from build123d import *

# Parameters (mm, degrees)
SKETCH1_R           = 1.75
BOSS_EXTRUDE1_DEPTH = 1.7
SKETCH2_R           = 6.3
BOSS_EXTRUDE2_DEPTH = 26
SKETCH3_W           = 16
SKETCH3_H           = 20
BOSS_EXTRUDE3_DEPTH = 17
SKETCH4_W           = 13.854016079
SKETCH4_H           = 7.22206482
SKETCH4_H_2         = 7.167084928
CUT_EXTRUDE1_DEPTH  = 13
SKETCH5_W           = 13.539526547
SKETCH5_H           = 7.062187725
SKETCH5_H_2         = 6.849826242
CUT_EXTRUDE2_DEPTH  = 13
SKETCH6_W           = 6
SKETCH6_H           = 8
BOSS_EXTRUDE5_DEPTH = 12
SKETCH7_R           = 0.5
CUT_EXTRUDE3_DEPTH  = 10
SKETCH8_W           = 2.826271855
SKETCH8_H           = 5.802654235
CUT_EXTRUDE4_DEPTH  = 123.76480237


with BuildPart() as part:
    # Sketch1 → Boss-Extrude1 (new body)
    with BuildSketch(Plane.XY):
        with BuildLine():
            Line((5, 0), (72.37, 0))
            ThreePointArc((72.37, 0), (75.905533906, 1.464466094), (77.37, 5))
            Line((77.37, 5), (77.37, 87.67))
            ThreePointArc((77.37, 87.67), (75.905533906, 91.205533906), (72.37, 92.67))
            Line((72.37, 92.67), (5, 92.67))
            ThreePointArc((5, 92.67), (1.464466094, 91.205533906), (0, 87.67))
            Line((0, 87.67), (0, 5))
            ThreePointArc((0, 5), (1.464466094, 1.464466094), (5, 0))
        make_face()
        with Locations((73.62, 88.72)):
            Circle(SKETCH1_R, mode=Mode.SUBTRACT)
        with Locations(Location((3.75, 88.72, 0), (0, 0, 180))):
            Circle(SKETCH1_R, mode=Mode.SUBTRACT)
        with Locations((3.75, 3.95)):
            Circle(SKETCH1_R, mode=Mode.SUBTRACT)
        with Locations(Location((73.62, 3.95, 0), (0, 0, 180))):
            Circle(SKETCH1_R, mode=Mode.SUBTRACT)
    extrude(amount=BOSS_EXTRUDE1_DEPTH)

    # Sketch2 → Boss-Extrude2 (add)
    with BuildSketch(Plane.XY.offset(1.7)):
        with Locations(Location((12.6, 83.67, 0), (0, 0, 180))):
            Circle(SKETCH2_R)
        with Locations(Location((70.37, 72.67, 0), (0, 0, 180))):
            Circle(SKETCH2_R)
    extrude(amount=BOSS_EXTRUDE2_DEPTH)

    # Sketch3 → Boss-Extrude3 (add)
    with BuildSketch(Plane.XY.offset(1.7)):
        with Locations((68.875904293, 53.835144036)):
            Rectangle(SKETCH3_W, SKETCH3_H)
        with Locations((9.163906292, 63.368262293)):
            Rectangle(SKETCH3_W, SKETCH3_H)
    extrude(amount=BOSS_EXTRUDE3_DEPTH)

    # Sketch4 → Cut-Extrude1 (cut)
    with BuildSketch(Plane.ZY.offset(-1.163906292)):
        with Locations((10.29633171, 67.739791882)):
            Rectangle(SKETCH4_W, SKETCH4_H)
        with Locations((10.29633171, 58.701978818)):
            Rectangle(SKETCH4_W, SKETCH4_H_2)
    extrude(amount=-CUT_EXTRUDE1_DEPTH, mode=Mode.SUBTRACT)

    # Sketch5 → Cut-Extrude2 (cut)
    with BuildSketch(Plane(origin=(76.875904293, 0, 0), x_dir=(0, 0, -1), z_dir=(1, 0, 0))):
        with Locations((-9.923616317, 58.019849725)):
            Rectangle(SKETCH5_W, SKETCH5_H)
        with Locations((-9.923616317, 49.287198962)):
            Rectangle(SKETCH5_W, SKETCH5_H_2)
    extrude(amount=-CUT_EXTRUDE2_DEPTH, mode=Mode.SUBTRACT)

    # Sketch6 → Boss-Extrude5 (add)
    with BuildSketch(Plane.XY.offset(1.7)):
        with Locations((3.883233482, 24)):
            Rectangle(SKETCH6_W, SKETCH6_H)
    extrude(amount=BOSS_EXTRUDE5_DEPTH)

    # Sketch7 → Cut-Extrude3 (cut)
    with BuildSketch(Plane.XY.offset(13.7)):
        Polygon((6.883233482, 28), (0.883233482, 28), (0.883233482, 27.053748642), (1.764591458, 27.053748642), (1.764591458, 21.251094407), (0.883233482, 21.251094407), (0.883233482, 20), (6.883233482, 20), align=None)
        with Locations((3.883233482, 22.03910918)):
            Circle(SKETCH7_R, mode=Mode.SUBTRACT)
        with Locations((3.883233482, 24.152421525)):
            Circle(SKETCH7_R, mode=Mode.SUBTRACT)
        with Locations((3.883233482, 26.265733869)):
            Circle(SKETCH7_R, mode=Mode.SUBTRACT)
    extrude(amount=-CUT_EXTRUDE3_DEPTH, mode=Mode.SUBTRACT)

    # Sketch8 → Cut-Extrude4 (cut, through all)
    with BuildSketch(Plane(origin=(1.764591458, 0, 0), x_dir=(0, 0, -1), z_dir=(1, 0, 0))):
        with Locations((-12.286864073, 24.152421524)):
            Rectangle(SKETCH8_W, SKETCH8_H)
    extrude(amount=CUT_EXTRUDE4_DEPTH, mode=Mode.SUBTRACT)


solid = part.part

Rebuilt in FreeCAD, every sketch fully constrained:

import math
import FreeCAD as App
import Part
import Sketcher
Q = App.Units.Quantity


def add_polygon(sketch, points):
    """Adds a closed chain of lines whose ends are joined by coincident constraints."""
    first, n = sketch.GeometryCount, len(points)
    for a, b in zip(points, points[1:] + points[:1]):
        sketch.addGeometry(Part.LineSegment(App.Vector(*a, 0), App.Vector(*b, 0)), False)
    for i in range(n):
        sketch.addConstraint(Sketcher.Constraint("Coincident", first + i, 2, first + (i + 1) % n, 1))

doc = App.newDocument("Part")
body = doc.addObject("PartDesign::Body", "Body")

# Sketch on XY plane
sketch1 = body.newObject("Sketcher::SketchObject", "Sketch")
sketch1.AttachmentSupport = (doc.getObject("XY_Plane"), [""])
sketch1.MapMode = "FlatFace"
sketch1.addGeometry([
    Part.LineSegment(App.Vector(5, 0, 0), App.Vector(72.37, 0, 0)),  # 0
    Part.ArcOfCircle(Part.Circle(App.Vector(72.37, 5, 0), App.Vector(0, 0, 1), 5), math.radians(-90), math.radians(0)),  # 1
    Part.LineSegment(App.Vector(77.37, 5, 0), App.Vector(77.37, 87.67, 0)),  # 2
    Part.ArcOfCircle(Part.Circle(App.Vector(72.37, 87.67, 0), App.Vector(0, 0, 1), 5), math.radians(0), math.radians(90)),  # 3
    Part.LineSegment(App.Vector(72.37, 92.67, 0), App.Vector(5, 92.67, 0)),  # 4
    Part.ArcOfCircle(Part.Circle(App.Vector(5, 87.67, 0), App.Vector(0, 0, 1), 5), math.radians(90), math.radians(180)),  # 5
    Part.LineSegment(App.Vector(0, 87.67, 0), App.Vector(0, 5, 0)),  # 6
    Part.ArcOfCircle(Part.Circle(App.Vector(5, 5, 0), App.Vector(0, 0, 1), 5), math.radians(180), math.radians(270)),  # 7
    Part.Circle(App.Vector(3.75, 3.95, 0), App.Vector(0, 0, 1), 1.75),  # 8
    Part.Circle(App.Vector(73.62, 3.95, 0), App.Vector(0, 0, 1), 1.75),  # 9
    Part.Circle(App.Vector(3.75, 88.72, 0), App.Vector(0, 0, 1), 1.75),  # 10
    Part.Circle(App.Vector(73.62, 88.72, 0), App.Vector(0, 0, 1), 1.75),  # 11
], False)
sketch1.addConstraint([
    Sketcher.Constraint("Tangent", 0, 2, 1, 1),
    Sketcher.Constraint("Tangent", 1, 2, 2, 1),
    Sketcher.Constraint("Tangent", 2, 2, 3, 1),
    Sketcher.Constraint("Tangent", 3, 2, 4, 1),
    Sketcher.Constraint("Tangent", 4, 2, 5, 1),
    Sketcher.Constraint("Tangent", 5, 2, 6, 1),
    Sketcher.Constraint("Tangent", 6, 2, 7, 1),
    Sketcher.Constraint("Tangent", 7, 2, 0, 1),
    Sketcher.Constraint("Horizontal", 0),
    Sketcher.Constraint("Vertical", 2),
    Sketcher.Constraint("Horizontal", 4),
    Sketcher.Constraint("Vertical", 6),
    Sketcher.Constraint("Equal", 1, 3),
    Sketcher.Constraint("Equal", 3, 5),
    Sketcher.Constraint("Equal", 5, 7),
    Sketcher.Constraint("Equal", 8, 9),
    Sketcher.Constraint("Equal", 9, 10),
    Sketcher.Constraint("Equal", 10, 11),
    Sketcher.Constraint("PointOnObject", 0, 2, -1),
    Sketcher.Constraint("PointOnObject", 5, 2, -2),
    Sketcher.Constraint("Horizontal", 8, 3, 9, 3),
    Sketcher.Constraint("Horizontal", 10, 3, 11, 3),
    Sketcher.Constraint("Vertical", 8, 3, 10, 3),
    Sketcher.Constraint("Vertical", 9, 3, 11, 3),
    Sketcher.Constraint("Radius", 1, Q("5 mm")),
    Sketcher.Constraint("Diameter", 8, Q("3.5 mm")),
    Sketcher.Constraint("DistanceX", 0, 1, 0, 2, Q("67.37 mm")),
    Sketcher.Constraint("DistanceY", 2, 1, 2, 2, Q("82.67 mm")),
    Sketcher.Constraint("DistanceX", -1, 1, 8, 3, Q("3.75 mm")),
    Sketcher.Constraint("DistanceY", -1, 1, 8, 3, Q("3.95 mm")),
    Sketcher.Constraint("DistanceX", -1, 1, 9, 3, Q("73.62 mm")),
    Sketcher.Constraint("DistanceY", -1, 1, 10, 3, Q("88.72 mm")),
])
pad1 = body.newObject("PartDesign::Pad", "Pad")
pad1.Profile = sketch1
pad1.Length = 1.7

# Sketch on XY plane
sketch2 = body.newObject("Sketcher::SketchObject", "Sketch001")
sketch2.AttachmentSupport = (doc.getObject("XY_Plane"), [""])
sketch2.MapMode = "FlatFace"
sketch2.AttachmentOffset = App.Placement(App.Vector(0, 0, 1.7), App.Rotation())
sketch2.addGeometry([
    Part.Circle(App.Vector(12.6, 83.67, 0), App.Vector(0, 0, 1), 6.3),
    Part.Circle(App.Vector(70.37, 72.67, 0), App.Vector(0, 0, 1), 6.3),
], False)
sketch2.addConstraint([
    Sketcher.Constraint("Equal", 0, 1),
    Sketcher.Constraint("Diameter", 0, Q("12.6 mm")),
    Sketcher.Constraint("DistanceY", 1, 3, 0, 3, Q("11 mm")),
    Sketcher.Constraint("DistanceX", -1, 1, 0, 3, Q("12.6 mm")),
    Sketcher.Constraint("DistanceY", -1, 1, 0, 3, Q("83.67 mm")),
    Sketcher.Constraint("DistanceX", -1, 1, 1, 3, Q("70.37 mm")),
])
pad2 = body.newObject("PartDesign::Pad", "Pad001")
pad2.Profile = sketch2
pad2.Length = 26

# Sketch on XY plane
sketch3 = body.newObject("Sketcher::SketchObject", "Sketch002")
sketch3.AttachmentSupport = (doc.getObject("XY_Plane"), [""])
sketch3.MapMode = "FlatFace"
sketch3.AttachmentOffset = App.Placement(App.Vector(0, 0, 1.7), App.Rotation())
add_polygon(sketch3, [(60.875904, 63.835144), (60.875904, 43.835144), (76.875904, 43.835144), (76.875904, 63.835144)])  # lines 0-3
add_polygon(sketch3, [(1.163906, 73.368262), (1.163906, 53.368262), (17.163906, 53.368262), (17.163906, 73.368262)])  # lines 4-7
sketch3.addConstraint([
    Sketcher.Constraint("Vertical", 0),
    Sketcher.Constraint("Horizontal", 1),
    Sketcher.Constraint("Vertical", 2),
    Sketcher.Constraint("Horizontal", 3),
    Sketcher.Constraint("Vertical", 4),
    Sketcher.Constraint("Horizontal", 5),
    Sketcher.Constraint("Vertical", 6),
    Sketcher.Constraint("Horizontal", 7),
    Sketcher.Constraint("Equal", 3, 5),
    Sketcher.Constraint("Equal", 2, 4),
    Sketcher.Constraint("DistanceX", 1, 1, 1, 2, Q("16 mm")),
    Sketcher.Constraint("DistanceY", 0, 2, 0, 1, Q("20 mm")),
    Sketcher.Constraint("DistanceX", 4, 2, 0, 2, Q("59.711998 mm")),
    Sketcher.Constraint("DistanceY", 0, 2, 4, 2, Q("9.533118 mm")),
    Sketcher.Constraint("DistanceX", -1, 1, 0, 2, Q("60.875904 mm")),
    Sketcher.Constraint("DistanceY", -1, 1, 0, 2, Q("43.835144 mm")),
])
pad3 = body.newObject("PartDesign::Pad", "Pad002")
pad3.Profile = sketch3
pad3.Length = 17

# Sketch on YZ plane
sketch4 = body.newObject("Sketcher::SketchObject", "Sketch003")
sketch4.AttachmentSupport = (doc.getObject("YZ_Plane"), [""])
sketch4.MapMode = "FlatFace"
sketch4.AttachmentOffset = App.Placement(App.Vector(0, 0, 1.163906), App.Rotation())
add_polygon(sketch4, [(71.350824, 3.369324), (64.128759, 3.369324), (64.128759, 17.22334), (71.350824, 17.22334)])  # lines 0-3
add_polygon(sketch4, [(62.285521, 3.369324), (55.118436, 3.369324), (55.118436, 17.22334), (62.285521, 17.22334)])  # lines 4-7
sketch4.addConstraint([
    Sketcher.Constraint("Horizontal", 0),
    Sketcher.Constraint("Vertical", 1),
    Sketcher.Constraint("Horizontal", 2),
    Sketcher.Constraint("Vertical", 3),
    Sketcher.Constraint("Horizontal", 4),
    Sketcher.Constraint("Vertical", 5),
    Sketcher.Constraint("Horizontal", 6),
    Sketcher.Constraint("Vertical", 7),
    Sketcher.Constraint("Horizontal", 3, 2, 4, 2),
    Sketcher.Constraint("Horizontal", 2, 2, 5, 2),
    Sketcher.Constraint("DistanceX", 0, 2, 0, 1, Q("7.222065 mm")),
    Sketcher.Constraint("DistanceX", 4, 2, 4, 1, Q("7.167085 mm")),
    Sketcher.Constraint("DistanceY", 1, 1, 1, 2, Q("13.854016 mm")),
    Sketcher.Constraint("DistanceX", -1, 1, 0, 2, Q("64.128759 mm")),
    Sketcher.Constraint("DistanceY", -1, 1, 1, 2, Q("17.22334 mm")),
    Sketcher.Constraint("DistanceX", -1, 1, 6, 2, Q("62.285521 mm")),
])
pocket1 = body.newObject("PartDesign::Pocket", "Pocket")
pocket1.Profile = sketch4
pocket1.Length = 13
pocket1.Reversed = True

# Sketch on YZ plane
sketch5 = body.newObject("Sketcher::SketchObject", "Sketch004")
sketch5.AttachmentSupport = (doc.getObject("YZ_Plane"), [""])
sketch5.MapMode = "FlatFace"
sketch5.AttachmentOffset = App.Placement(App.Vector(0, 0, 76.875904), App.Rotation())
add_polygon(sketch5, [(61.550944, 16.69338), (54.488756, 16.69338), (54.488756, 3.153853), (61.550944, 3.153853)])  # lines 0-3
add_polygon(sketch5, [(52.712112, 16.69338), (45.862286, 16.69338), (45.862286, 3.153853), (52.712112, 3.153853)])  # lines 4-7
sketch5.addConstraint([
    Sketcher.Constraint("Horizontal", 0),
    Sketcher.Constraint("Vertical", 1),
    Sketcher.Constraint("Horizontal", 2),
    Sketcher.Constraint("Vertical", 3),
    Sketcher.Constraint("Horizontal", 4),
    Sketcher.Constraint("Vertical", 5),
    Sketcher.Constraint("Horizontal", 6),
    Sketcher.Constraint("Vertical", 7),
    Sketcher.Constraint("Horizontal", 3, 2, 4, 2),
    Sketcher.Constraint("Horizontal", 2, 2, 5, 2),
    Sketcher.Constraint("DistanceX", 0, 2, 0, 1, Q("7.062188 mm")),
    Sketcher.Constraint("DistanceX", 4, 2, 4, 1, Q("6.849826 mm")),
    Sketcher.Constraint("DistanceY", 1, 2, 1, 1, Q("13.539527 mm")),
    Sketcher.Constraint("DistanceY", -1, 1, 0, 2, Q("16.69338 mm")),
    Sketcher.Constraint("DistanceX", 4, 2, 0, 2, Q("8.62647 mm")),
    Sketcher.Constraint("DistanceX", -1, 1, 0, 2, Q("54.488756 mm")),
])
pocket2 = body.newObject("PartDesign::Pocket", "Pocket001")
pocket2.Profile = sketch5
pocket2.Length = 13

# Sketch on XY plane
sketch6 = body.newObject("Sketcher::SketchObject", "Sketch005")
sketch6.AttachmentSupport = (doc.getObject("XY_Plane"), [""])
sketch6.MapMode = "FlatFace"
sketch6.AttachmentOffset = App.Placement(App.Vector(0, 0, 1.7), App.Rotation())
add_polygon(sketch6, [(0.883233, 28), (0.883233, 20), (6.883233, 20), (6.883233, 28)])  # lines 0-3
sketch6.addConstraint([
    Sketcher.Constraint("Vertical", 0),
    Sketcher.Constraint("Horizontal", 1),
    Sketcher.Constraint("Vertical", 2),
    Sketcher.Constraint("Horizontal", 3),
    Sketcher.Constraint("DistanceX", 1, 1, 1, 2, Q("6 mm")),
    Sketcher.Constraint("DistanceY", 0, 2, 0, 1, Q("8 mm")),
    Sketcher.Constraint("DistanceY", -1, 1, 0, 2, Q("20 mm")),
    Sketcher.Constraint("DistanceX", -1, 1, 0, 2, Q("0.883233 mm")),
])
pad4 = body.newObject("PartDesign::Pad", "Pad003")
pad4.Profile = sketch6
pad4.Length = 12

# Sketch on XY plane
sketch7 = body.newObject("Sketcher::SketchObject", "Sketch006")
sketch7.AttachmentSupport = (doc.getObject("XY_Plane"), [""])
sketch7.MapMode = "FlatFace"
sketch7.AttachmentOffset = App.Placement(App.Vector(0, 0, 13.7), App.Rotation())
add_polygon(sketch7, [(6.883233, 28), (0.883233, 28), (0.883233, 27.053749), (1.764591, 27.053749), (1.764591, 21.251094), (0.883233, 21.251094), (0.883233, 20), (6.883233, 20)])  # lines 0-7
sketch7.addGeometry(Part.Circle(App.Vector(3.883233, 22.039109, 0), App.Vector(0, 0, 1), 0.5), False)  # 8
sketch7.addGeometry(Part.Circle(App.Vector(3.883233, 24.152422, 0), App.Vector(0, 0, 1), 0.5), False)  # 9
sketch7.addGeometry(Part.Circle(App.Vector(3.883233, 26.265734, 0), App.Vector(0, 0, 1), 0.5), False)  # 10
sketch7.addConstraint([
    Sketcher.Constraint("Horizontal", 0),
    Sketcher.Constraint("Vertical", 1),
    Sketcher.Constraint("Horizontal", 2),
    Sketcher.Constraint("Vertical", 3),
    Sketcher.Constraint("Horizontal", 4),
    Sketcher.Constraint("Vertical", 5),
    Sketcher.Constraint("Horizontal", 6),
    Sketcher.Constraint("Vertical", 7),
    Sketcher.Constraint("Equal", 8, 9),
    Sketcher.Constraint("Equal", 9, 10),
    Sketcher.Constraint("Vertical", 8, 3, 9, 3),
    Sketcher.Constraint("Vertical", 9, 3, 10, 3),
    Sketcher.Constraint("Vertical", 1, 2, 4, 2),
    Sketcher.Constraint("Diameter", 8, Q("1 mm")),
    Sketcher.Constraint("DistanceX", 0, 2, 0, 1, Q("6 mm")),
    Sketcher.Constraint("DistanceY", 7, 1, 7, 2, Q("8 mm")),
    Sketcher.Constraint("DistanceY", -1, 1, 0, 2, Q("28 mm")),
    Sketcher.Constraint("DistanceX", 0, 2, 10, 3, Q("3 mm")),
    Sketcher.Constraint("DistanceY", 1, 2, 1, 1, Q("0.946251 mm")),
    Sketcher.Constraint("DistanceX", 2, 1, 2, 2, Q("0.881358 mm")),
    Sketcher.Constraint("DistanceY", 3, 2, 3, 1, Q("5.802654 mm")),
    Sketcher.Constraint("DistanceY", -1, 1, 8, 3, Q("22.039109 mm")),
    Sketcher.Constraint("DistanceY", -1, 1, 9, 3, Q("24.152422 mm")),
    Sketcher.Constraint("DistanceX", -1, 1, 2, 2, Q("1.764591 mm")),
    Sketcher.Constraint("DistanceY", 3, 2, 10, 3, Q("5.014639 mm")),
])
pocket3 = body.newObject("PartDesign::Pocket", "Pocket002")
pocket3.Profile = sketch7
pocket3.Length = 10

# Sketch on YZ plane
sketch8 = body.newObject("Sketcher::SketchObject", "Sketch007")
sketch8.AttachmentSupport = (doc.getObject("YZ_Plane"), [""])
sketch8.MapMode = "FlatFace"
sketch8.AttachmentOffset = App.Placement(App.Vector(0, 0, 1.764591), App.Rotation())
add_polygon(sketch8, [(27.053749, 13.7), (21.251094, 13.7), (21.251094, 10.873728), (27.053749, 10.873728)])  # lines 0-3
sketch8.addConstraint([
    Sketcher.Constraint("Horizontal", 0),
    Sketcher.Constraint("Vertical", 1),
    Sketcher.Constraint("Horizontal", 2),
    Sketcher.Constraint("Vertical", 3),
    Sketcher.Constraint("DistanceY", -1, 1, 0, 2, Q("13.7 mm")),
    Sketcher.Constraint("DistanceY", 1, 2, 1, 1, Q("2.826272 mm")),
    Sketcher.Constraint("DistanceX", 0, 2, 0, 1, Q("5.802654 mm")),
    Sketcher.Constraint("DistanceX", -1, 1, 2, 2, Q("27.053749 mm")),
])
pocket4 = body.newObject("PartDesign::Pocket", "Pocket003")
pocket4.Profile = sketch8
pocket4.Type = "ThroughAll"
pocket4.Reversed = True

doc.recompute()
